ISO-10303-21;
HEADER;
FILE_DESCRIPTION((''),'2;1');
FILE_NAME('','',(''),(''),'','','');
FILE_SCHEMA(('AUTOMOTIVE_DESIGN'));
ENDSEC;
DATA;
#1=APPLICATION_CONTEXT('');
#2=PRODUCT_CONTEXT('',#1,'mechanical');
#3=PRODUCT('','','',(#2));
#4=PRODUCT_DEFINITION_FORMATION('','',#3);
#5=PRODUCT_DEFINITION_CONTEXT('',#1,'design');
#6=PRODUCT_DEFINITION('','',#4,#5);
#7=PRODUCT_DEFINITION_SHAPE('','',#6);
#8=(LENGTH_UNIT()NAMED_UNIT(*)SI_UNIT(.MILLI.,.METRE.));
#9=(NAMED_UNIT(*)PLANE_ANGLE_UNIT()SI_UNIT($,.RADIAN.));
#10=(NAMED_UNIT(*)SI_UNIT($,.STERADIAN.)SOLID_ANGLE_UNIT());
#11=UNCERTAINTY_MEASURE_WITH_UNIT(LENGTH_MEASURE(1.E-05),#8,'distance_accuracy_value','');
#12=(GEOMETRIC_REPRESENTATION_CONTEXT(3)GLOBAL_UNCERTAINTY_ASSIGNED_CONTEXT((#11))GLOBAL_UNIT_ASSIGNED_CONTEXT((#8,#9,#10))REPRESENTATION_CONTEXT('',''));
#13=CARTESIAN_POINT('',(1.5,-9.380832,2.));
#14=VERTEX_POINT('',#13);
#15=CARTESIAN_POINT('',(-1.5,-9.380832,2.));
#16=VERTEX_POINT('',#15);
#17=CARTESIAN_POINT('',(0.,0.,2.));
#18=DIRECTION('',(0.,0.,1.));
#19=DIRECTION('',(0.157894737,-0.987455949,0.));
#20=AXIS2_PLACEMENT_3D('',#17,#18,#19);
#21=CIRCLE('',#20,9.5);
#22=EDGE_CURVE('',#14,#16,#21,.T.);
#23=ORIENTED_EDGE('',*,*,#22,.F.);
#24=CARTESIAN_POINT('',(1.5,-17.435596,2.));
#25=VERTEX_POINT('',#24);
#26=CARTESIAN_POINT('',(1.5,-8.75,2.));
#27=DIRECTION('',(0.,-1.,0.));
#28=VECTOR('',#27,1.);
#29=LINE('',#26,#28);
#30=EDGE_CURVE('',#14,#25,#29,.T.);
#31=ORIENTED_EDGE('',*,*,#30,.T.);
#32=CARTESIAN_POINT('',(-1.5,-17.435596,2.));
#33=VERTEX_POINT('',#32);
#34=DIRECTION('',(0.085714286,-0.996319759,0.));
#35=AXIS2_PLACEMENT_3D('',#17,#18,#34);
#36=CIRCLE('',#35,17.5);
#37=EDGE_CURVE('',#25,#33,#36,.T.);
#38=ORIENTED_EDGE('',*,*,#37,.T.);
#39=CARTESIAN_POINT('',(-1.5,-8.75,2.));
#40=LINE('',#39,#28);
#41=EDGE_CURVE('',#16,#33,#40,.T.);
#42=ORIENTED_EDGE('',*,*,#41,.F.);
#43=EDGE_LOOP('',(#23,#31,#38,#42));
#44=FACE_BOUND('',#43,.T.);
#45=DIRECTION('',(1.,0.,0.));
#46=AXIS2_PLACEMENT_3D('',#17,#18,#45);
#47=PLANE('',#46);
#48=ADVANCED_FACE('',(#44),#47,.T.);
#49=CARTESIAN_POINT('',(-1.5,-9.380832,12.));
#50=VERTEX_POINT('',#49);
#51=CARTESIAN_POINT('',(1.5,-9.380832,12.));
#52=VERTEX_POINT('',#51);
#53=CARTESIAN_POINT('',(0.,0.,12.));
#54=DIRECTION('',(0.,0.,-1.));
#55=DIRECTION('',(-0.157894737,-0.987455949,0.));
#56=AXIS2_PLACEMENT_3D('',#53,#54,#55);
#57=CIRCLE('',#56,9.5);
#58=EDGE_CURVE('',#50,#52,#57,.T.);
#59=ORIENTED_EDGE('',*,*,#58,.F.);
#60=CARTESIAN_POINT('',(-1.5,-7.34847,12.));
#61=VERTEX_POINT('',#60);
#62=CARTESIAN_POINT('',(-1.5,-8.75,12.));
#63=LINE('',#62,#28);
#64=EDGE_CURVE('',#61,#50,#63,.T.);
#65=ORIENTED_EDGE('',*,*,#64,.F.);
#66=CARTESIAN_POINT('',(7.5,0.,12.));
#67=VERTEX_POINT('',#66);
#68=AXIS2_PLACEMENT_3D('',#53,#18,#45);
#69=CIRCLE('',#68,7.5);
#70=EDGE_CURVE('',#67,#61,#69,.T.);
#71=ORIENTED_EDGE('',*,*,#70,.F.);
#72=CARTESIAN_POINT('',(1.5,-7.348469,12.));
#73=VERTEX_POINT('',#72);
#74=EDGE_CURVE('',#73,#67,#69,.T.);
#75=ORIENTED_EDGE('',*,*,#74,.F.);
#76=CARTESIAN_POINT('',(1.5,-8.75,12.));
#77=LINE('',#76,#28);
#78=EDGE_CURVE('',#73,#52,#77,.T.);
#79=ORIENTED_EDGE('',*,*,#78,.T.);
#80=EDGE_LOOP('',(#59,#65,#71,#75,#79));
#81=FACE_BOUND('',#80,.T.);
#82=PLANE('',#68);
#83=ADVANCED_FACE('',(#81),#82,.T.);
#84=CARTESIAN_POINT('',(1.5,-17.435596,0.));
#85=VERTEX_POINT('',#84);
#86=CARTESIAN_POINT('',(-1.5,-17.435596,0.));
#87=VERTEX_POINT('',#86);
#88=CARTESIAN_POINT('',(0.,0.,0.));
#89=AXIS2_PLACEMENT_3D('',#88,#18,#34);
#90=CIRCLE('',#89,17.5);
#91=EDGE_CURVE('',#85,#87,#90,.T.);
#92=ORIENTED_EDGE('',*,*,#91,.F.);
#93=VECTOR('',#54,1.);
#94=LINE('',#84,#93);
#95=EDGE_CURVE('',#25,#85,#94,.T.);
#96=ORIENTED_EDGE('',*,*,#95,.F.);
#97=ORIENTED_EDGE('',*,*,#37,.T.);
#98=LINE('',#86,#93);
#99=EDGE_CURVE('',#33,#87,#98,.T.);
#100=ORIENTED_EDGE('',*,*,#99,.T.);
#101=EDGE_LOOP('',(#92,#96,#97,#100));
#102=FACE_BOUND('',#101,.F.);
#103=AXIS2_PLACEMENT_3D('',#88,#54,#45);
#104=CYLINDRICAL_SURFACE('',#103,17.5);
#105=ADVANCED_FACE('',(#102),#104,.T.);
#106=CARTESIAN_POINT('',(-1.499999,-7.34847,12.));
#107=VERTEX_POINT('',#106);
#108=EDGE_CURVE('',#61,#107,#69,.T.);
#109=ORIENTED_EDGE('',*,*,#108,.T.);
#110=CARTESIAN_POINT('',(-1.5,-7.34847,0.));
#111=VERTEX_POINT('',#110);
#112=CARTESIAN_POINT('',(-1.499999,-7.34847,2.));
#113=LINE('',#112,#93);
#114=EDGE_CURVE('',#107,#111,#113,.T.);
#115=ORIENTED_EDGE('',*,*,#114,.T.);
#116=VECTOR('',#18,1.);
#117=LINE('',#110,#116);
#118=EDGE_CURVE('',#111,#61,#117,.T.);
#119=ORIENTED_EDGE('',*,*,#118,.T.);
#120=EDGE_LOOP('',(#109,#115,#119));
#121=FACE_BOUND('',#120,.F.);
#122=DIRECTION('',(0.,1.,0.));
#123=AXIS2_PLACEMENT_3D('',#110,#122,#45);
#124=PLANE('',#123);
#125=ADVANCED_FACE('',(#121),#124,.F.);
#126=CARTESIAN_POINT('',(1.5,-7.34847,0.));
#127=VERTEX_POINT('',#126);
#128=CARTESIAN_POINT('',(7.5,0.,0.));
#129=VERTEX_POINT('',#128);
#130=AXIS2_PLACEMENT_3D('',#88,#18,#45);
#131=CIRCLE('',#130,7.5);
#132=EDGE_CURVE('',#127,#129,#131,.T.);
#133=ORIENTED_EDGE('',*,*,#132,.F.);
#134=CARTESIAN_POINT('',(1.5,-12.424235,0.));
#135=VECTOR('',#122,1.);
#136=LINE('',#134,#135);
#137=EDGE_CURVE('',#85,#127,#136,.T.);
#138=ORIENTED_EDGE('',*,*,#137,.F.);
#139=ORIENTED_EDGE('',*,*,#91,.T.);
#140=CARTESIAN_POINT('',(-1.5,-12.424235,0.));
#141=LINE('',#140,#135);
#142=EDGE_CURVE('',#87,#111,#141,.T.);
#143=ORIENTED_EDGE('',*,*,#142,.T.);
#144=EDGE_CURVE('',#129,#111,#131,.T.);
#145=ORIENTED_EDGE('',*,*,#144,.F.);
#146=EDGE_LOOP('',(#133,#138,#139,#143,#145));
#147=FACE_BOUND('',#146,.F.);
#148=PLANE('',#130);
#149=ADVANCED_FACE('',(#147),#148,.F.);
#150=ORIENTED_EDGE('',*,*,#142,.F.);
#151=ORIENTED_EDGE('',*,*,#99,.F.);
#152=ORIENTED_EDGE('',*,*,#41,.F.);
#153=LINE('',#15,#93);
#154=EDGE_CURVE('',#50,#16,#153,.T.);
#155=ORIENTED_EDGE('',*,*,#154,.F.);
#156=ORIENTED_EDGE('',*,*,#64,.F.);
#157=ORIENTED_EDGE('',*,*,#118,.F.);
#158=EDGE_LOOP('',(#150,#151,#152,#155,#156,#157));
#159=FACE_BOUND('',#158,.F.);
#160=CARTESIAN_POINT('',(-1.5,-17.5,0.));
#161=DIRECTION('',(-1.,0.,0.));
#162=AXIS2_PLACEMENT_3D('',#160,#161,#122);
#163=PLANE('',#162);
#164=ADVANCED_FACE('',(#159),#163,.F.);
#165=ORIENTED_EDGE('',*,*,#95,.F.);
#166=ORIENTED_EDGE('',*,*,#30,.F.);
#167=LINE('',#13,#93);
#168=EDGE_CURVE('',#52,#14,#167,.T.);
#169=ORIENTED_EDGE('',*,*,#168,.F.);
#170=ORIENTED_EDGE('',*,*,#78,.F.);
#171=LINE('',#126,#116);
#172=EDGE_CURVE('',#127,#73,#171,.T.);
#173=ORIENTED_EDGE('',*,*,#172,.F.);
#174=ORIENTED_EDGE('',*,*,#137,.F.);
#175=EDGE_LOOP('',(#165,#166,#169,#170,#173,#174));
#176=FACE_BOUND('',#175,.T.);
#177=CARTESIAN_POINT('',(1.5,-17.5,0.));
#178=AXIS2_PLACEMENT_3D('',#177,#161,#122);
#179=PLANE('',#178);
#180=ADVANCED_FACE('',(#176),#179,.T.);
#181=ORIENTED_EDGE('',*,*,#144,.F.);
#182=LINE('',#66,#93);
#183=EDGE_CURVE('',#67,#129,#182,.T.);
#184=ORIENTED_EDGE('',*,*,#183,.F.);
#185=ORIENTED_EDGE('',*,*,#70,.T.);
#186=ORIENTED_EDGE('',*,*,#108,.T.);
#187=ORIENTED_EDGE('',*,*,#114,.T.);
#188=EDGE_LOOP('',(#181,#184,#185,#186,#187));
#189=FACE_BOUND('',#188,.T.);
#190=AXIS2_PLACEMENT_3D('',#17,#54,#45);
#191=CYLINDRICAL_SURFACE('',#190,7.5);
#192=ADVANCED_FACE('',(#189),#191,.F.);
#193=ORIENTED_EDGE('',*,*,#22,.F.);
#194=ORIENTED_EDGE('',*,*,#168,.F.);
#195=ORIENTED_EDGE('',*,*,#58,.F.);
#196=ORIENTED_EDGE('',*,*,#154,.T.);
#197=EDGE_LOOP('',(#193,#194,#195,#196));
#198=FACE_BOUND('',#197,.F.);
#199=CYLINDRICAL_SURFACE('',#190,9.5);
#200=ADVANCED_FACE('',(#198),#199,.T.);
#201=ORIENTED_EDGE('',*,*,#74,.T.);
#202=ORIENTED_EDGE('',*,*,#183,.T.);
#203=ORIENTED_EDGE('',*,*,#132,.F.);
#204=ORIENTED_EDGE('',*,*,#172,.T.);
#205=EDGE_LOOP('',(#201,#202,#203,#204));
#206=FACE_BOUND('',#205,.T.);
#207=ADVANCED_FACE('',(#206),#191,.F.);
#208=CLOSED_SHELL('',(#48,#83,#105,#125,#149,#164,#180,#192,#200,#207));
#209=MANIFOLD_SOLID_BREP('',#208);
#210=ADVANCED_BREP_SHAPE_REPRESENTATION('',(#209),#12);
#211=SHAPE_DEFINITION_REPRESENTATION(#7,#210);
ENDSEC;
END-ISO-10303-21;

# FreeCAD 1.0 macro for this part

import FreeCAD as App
import Part
import Sketcher


def add_polygon(sketch, points):
    """Adds a closed chain of lines whose ends are joined by coincident constraints."""
    first, n = sketch.GeometryCount, len(points)
    for a, b in zip(points, points[1:] + points[:1]):
        sketch.addGeometry(Part.LineSegment(App.Vector(*a, 0), App.Vector(*b, 0)), False)
    for i in range(n):
        sketch.addConstraint(Sketcher.Constraint("Coincident", first + i, 2, first + (i + 1) % n, 1))

doc = App.newDocument("Part")
body = doc.addObject("PartDesign::Body", "Body")

sketch1 = body.newObject("Sketcher::SketchObject", "Sketch")
sketch1.AttachmentSupport = (doc.getObject("XY_Plane"), [""])
sketch1.MapMode = "FlatFace"
sketch1.addGeometry([
    Part.Circle(App.Vector(0, 0, 0), App.Vector(0, 0, 1), 17.5),
    Part.Circle(App.Vector(0, 0, 0), App.Vector(0, 0, 1), 7.5),
], False)
sketch1.addConstraint([
    Sketcher.Constraint("Coincident", 0, 3, -1, 1),
    Sketcher.Constraint("Coincident", 1, 3, -1, 1),
    Sketcher.Constraint("Diameter", 0, 35.0),
    Sketcher.Constraint("Diameter", 1, 15.0),
])
pad1 = body.newObject("PartDesign::Pad", "Pad")
pad1.Profile = sketch1
pad1.Length = 2

sketch2 = body.newObject("Sketcher::SketchObject", "Sketch001")
sketch2.AttachmentSupport = (doc.getObject("XY_Plane"), [""])
sketch2.MapMode = "FlatFace"
sketch2.AttachmentOffset = App.Placement(App.Vector(0, 0, 2), App.Rotation())
sketch2.addGeometry([
    Part.Circle(App.Vector(0, 0, 0), App.Vector(0, 0, 1), 9.5),
    Part.Circle(App.Vector(0, 0, 0), App.Vector(0, 0, 1), 7.5),
], False)
sketch2.addConstraint([
    Sketcher.Constraint("Coincident", 0, 3, -1, 1),
    Sketcher.Constraint("Coincident", 1, 3, -1, 1),
    Sketcher.Constraint("Diameter", 0, 19.0),
    Sketcher.Constraint("Diameter", 1, 15.0),
])
pad2 = body.newObject("PartDesign::Pad", "Pad001")
pad2.Profile = sketch2
pad2.Length = 10

sketch3 = body.newObject("Sketcher::SketchObject", "Sketch002")
sketch3.AttachmentSupport = (doc.getObject("XY_Plane"), [""])
sketch3.MapMode = "FlatFace"
add_polygon(sketch3, [(-1.5, -7.34847), (-1.5, -17.5), (1.5, -17.5), (1.5, -7.34847)])
sketch3.addConstraint([
    Sketcher.Constraint("Vertical", 0),
    Sketcher.Constraint("Horizontal", 1),
    Sketcher.Constraint("Vertical", 2),
    Sketcher.Constraint("Horizontal", 3),
    Sketcher.Constraint("DistanceX", 1, 1, 1, 2, 3.0),
    Sketcher.Constraint("DistanceX", 0, 2, -1, 1, 1.5),
    Sketcher.Constraint("DistanceY", 0, 2, -1, 1, 17.5),
    Sketcher.Constraint("DistanceY", 0, 2, 0, 1, 10.151531),
])
pocket1 = body.newObject("PartDesign::Pocket", "Pocket")
pocket1.Profile = sketch3
pocket1.Type = "ThroughAll"
pocket1.Reversed = True

doc.recompute()
